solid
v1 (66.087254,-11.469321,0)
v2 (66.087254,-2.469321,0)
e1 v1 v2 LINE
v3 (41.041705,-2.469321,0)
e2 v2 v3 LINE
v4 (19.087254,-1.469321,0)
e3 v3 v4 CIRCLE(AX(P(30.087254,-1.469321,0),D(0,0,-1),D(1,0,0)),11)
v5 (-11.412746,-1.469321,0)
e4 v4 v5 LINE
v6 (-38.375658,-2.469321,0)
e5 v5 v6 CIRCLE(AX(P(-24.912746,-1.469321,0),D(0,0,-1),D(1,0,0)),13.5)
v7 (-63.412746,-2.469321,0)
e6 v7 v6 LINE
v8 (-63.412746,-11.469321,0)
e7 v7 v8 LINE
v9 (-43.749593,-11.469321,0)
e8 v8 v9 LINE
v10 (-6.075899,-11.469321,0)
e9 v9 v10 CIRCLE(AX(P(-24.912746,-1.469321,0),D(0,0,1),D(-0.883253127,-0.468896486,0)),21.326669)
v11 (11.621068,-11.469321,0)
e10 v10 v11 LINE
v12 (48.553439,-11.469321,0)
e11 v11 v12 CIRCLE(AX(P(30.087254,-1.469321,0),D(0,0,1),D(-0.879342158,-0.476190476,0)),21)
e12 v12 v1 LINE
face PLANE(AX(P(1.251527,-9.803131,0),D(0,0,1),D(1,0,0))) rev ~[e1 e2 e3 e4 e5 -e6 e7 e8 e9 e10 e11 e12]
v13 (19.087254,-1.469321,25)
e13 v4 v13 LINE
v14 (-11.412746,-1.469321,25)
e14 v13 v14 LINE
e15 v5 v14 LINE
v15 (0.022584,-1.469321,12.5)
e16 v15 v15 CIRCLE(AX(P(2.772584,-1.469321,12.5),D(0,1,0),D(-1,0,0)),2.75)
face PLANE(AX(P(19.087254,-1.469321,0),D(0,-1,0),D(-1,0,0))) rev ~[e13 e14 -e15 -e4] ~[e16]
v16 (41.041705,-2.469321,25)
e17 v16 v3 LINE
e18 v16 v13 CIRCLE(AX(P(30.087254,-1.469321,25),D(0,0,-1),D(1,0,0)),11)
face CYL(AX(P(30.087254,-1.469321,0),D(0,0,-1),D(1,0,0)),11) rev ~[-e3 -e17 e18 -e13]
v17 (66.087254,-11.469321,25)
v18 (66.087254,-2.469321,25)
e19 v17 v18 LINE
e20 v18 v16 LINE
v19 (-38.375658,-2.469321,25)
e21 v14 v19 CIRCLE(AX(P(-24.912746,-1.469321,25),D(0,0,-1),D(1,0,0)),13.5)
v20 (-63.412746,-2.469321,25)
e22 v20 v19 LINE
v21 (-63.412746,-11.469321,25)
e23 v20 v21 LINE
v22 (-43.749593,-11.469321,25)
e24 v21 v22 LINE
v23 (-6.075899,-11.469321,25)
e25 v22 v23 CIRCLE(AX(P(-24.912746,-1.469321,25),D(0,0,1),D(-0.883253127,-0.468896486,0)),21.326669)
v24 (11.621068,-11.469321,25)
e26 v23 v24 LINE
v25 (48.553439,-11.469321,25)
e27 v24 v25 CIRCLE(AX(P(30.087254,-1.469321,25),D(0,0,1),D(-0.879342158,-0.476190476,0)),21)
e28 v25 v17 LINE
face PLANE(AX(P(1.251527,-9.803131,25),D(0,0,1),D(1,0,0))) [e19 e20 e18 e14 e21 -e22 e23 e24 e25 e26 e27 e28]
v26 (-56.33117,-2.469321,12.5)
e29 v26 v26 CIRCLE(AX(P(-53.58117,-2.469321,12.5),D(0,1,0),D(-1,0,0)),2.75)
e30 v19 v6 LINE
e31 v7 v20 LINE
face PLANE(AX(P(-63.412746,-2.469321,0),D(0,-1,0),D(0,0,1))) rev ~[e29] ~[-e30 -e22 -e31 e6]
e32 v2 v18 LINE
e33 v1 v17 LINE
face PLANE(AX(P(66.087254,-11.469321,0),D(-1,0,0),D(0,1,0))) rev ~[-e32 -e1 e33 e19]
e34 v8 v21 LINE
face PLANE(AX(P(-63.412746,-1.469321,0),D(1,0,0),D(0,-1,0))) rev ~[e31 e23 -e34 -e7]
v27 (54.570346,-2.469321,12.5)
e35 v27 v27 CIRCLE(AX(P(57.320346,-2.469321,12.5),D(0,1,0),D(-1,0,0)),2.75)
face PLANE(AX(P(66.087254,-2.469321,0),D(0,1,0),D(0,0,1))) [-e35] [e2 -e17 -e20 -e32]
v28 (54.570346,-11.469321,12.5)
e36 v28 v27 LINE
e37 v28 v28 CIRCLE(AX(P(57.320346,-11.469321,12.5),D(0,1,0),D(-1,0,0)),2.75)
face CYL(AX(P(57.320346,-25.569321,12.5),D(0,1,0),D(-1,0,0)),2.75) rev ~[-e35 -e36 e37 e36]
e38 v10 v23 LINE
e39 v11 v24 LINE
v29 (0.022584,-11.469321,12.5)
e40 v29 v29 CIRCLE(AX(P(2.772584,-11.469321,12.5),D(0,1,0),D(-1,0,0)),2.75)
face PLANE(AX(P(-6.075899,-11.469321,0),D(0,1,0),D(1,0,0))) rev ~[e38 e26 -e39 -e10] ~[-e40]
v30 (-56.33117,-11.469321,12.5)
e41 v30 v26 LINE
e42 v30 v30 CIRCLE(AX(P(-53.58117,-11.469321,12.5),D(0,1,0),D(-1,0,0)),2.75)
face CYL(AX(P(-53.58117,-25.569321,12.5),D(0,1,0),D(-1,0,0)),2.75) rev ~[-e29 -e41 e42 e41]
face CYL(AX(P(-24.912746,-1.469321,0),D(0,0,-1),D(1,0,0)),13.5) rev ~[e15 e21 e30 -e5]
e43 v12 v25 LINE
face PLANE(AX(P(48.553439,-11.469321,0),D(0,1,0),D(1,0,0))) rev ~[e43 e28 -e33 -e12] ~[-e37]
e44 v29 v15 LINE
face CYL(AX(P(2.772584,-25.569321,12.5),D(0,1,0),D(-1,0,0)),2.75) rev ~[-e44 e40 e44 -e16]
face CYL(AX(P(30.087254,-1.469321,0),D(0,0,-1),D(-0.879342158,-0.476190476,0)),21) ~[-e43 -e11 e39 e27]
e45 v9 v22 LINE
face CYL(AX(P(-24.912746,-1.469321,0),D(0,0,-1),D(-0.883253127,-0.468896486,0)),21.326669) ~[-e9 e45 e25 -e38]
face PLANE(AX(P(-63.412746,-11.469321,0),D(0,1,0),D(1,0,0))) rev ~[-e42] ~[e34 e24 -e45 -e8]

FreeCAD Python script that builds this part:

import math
import FreeCAD as App
import Part
import Sketcher
from FreeCAD import Vector


def add_polygon(sketch, points):
    """Adds a closed chain of lines whose ends are joined by coincident constraints."""
    first, n = sketch.GeometryCount, len(points)
    for a, b in zip(points, points[1:] + points[:1]):
        sketch.addGeometry(Part.LineSegment(App.Vector(*a, 0), App.Vector(*b, 0)), False)
    for i in range(n):
        sketch.addConstraint(Sketcher.Constraint("Coincident", first + i, 2, first + (i + 1) % n, 1))

doc = App.newDocument("Part")
body = doc.addObject("PartDesign::Body", "Body")

# Sketch on XY plane
sketch1 = body.newObject("Sketcher::SketchObject", "Sketch")
sketch1.AttachmentSupport = (doc.getObject("XY_Plane"), [""])
sketch1.MapMode = "FlatFace"
sketch1.addGeometry(Part.LineSegment(Vector(-38.412746, -1.469321, 0), Vector(-63.412746, -1.469321, 0)), False)
sketch1.addGeometry(Part.LineSegment(Vector(-63.412746, -1.469321, 0), Vector(-63.412746, -11.469321, 0)), False)
sketch1.addGeometry(Part.LineSegment(Vector(-63.412746, -11.469321, 0), Vector(-43.749593, -11.469321, 0)), False)
sketch1.addGeometry(Part.ArcOfCircle(Part.Circle(Vector(-24.912746, -1.469321, 0), Vector(0, 0, 1), 21.326669), math.radians(-152.037311), math.radians(-27.962689)), False)
sketch1.addGeometry(Part.LineSegment(Vector(-6.075899, -11.469321, 0), Vector(11.621068, -11.469321, 0)), False)
sketch1.addGeometry(Part.ArcOfCircle(Part.Circle(Vector(30.087254, -1.469321, 0), Vector(0, 0, 1), 21), math.radians(-151.56311), math.radians(-28.43689)), False)
sketch1.addGeometry(Part.LineSegment(Vector(48.553439, -11.469321, 0), Vector(66.087254, -11.469321, 0)), False)
sketch1.addGeometry(Part.LineSegment(Vector(66.087254, -11.469321, 0), Vector(66.087254, -1.469321, 0)), False)
sketch1.addGeometry(Part.LineSegment(Vector(66.087254, -1.469321, 0), Vector(41.087254, -1.469321, 0)), False)
sketch1.addGeometry(Part.ArcOfCircle(Part.Circle(Vector(30.087254, -1.469321, 0), Vector(0, 0, 1), 11), math.radians(180), math.radians(360)), False)
sketch1.addGeometry(Part.LineSegment(Vector(19.087254, -1.469321, 0), Vector(-11.412746, -1.469321, 0)), False)
sketch1.addGeometry(Part.ArcOfCircle(Part.Circle(Vector(-24.912746, -1.469321, 0), Vector(0, 0, 1), 13.5), math.radians(180), math.radians(360)), False)
sketch1.addConstraint(Sketcher.Constraint("Coincident", 0, 2, 1, 1))
sketch1.addConstraint(Sketcher.Constraint("Coincident", 1, 2, 2, 1))
sketch1.addConstraint(Sketcher.Constraint("Coincident", 2, 2, 3, 1))
sketch1.addConstraint(Sketcher.Constraint("Coincident", 3, 2, 4, 1))
sketch1.addConstraint(Sketcher.Constraint("Coincident", 4, 2, 5, 1))
sketch1.addConstraint(Sketcher.Constraint("Coincident", 5, 2, 6, 1))
sketch1.addConstraint(Sketcher.Constraint("Coincident", 6, 2, 7, 1))
sketch1.addConstraint(Sketcher.Constraint("Coincident", 7, 2, 8, 1))
sketch1.addConstraint(Sketcher.Constraint("Coincident", 8, 2, 9, 2))
sketch1.addConstraint(Sketcher.Constraint("Coincident", 9, 1, 10, 1))
sketch1.addConstraint(Sketcher.Constraint("Coincident", 10, 2, 11, 2))
sketch1.addConstraint(Sketcher.Constraint("Coincident", 11, 1, 0, 1))
sketch1.addConstraint(Sketcher.Constraint("Horizontal", 0))
sketch1.addConstraint(Sketcher.Constraint("Vertical", 1))
sketch1.addConstraint(Sketcher.Constraint("Horizontal", 2))
sketch1.addConstraint(Sketcher.Constraint("Horizontal", 4))
sketch1.addConstraint(Sketcher.Constraint("Horizontal", 6))
sketch1.addConstraint(Sketcher.Constraint("Vertical", 7))
sketch1.addConstraint(Sketcher.Constraint("Horizontal", 8))
sketch1.addConstraint(Sketcher.Constraint("Horizontal", 10))
sketch1.addConstraint(Sketcher.Constraint("Coincident", 9, 3, 5, 3))
sketch1.addConstraint(Sketcher.Constraint("Coincident", 11, 3, 3, 3))
sketch1.addConstraint(Sketcher.Constraint("Horizontal", 3, 3, 5, 3))
sketch1.addConstraint(Sketcher.Constraint("Horizontal", 11, 3, 0, 2))
sketch1.addConstraint(Sketcher.Constraint("Horizontal", 2, 2, 3, 2))
sketch1.addConstraint(Sketcher.Constraint("Horizontal", 4, 2, 5, 2))
sketch1.addConstraint(Sketcher.Constraint("Horizontal", 0, 2, 7, 2))
sketch1.addConstraint(Sketcher.Constraint("Horizontal", 8, 2, 9, 1))
sketch1.addConstraint(Sketcher.Constraint("Equal", 0, 8))
sketch1.addConstraint(Sketcher.Constraint("Radius", 5, 21.0))
sketch1.addConstraint(Sketcher.Constraint("Radius", 9, 11.0))
sketch1.addConstraint(Sketcher.Constraint("Radius", 11, 13.5))
sketch1.addConstraint(Sketcher.Constraint("DistanceX", 0, 2, 0, 1, 25.0))
sketch1.addConstraint(Sketcher.Constraint("DistanceY", 1, 2, 1, 1, 10.0))
sketch1.addConstraint(Sketcher.Constraint("DistanceX", 10, 2, 10, 1, 30.5))
sketch1.addConstraint(Sketcher.Constraint("Radius", 3, 21.326669))
sketch1.addConstraint(Sketcher.Constraint("DistanceX", 3, 2, -1, 1, 6.075899))
sketch1.addConstraint(Sketcher.Constraint("DistanceY", 3, 3, -1, 1, 1.469321))
pad1 = body.newObject("PartDesign::Pad", "Pad")
pad1.Profile = sketch1
pad1.Length = 25

# Sketch on XZ plane
sketch2 = body.newObject("Sketcher::SketchObject", "Sketch001")
sketch2.AttachmentSupport = (doc.getObject("XZ_Plane"), [""])
sketch2.MapMode = "FlatFace"
sketch2.AttachmentOffset = App.Placement(Vector(0, 0, 11.469321), App.Rotation())
sketch2.addGeometry(Part.Circle(Vector(-53.58117, 12.5, 0), Vector(0, 0, 1), 2.75), False)
sketch2.addConstraint(Sketcher.Constraint("Diameter", 0, 5.5))
sketch2.addConstraint(Sketcher.Constraint("DistanceY", -1, 1, 0, 3, 12.5))
sketch2.addConstraint(Sketcher.Constraint("DistanceX", 0, 3, -1, 1, 53.58117))
doc.recompute()
hole = body.newObject("PartDesign::Hole", "Hole")
hole.Profile = sketch2
hole.ThreadType = "None"
hole.Diameter = 5.5
hole.DepthType = "Dimension"
hole.Depth = 14.1
hole.DrillPoint = "Angled"
hole.DrillPointAngle = 118

# Sketch on XZ plane
sketch3 = body.newObject("Sketcher::SketchObject", "Sketch002")
sketch3.AttachmentSupport = (doc.getObject("XZ_Plane"), [""])
sketch3.MapMode = "FlatFace"
sketch3.AttachmentOffset = App.Placement(Vector(0, 0, 11.469321), App.Rotation())
sketch3.addGeometry(Part.Circle(Vector(57.320346, 12.5, 0), Vector(0, 0, 1), 2.75), False)
sketch3.addConstraint(Sketcher.Constraint("Diameter", 0, 5.5))
sketch3.addConstraint(Sketcher.Constraint("DistanceY", -1, 1, 0, 3, 12.5))
sketch3.addConstraint(Sketcher.Constraint("DistanceX", -1, 1, 0, 3, 57.320346))
doc.recompute()
hole2 = body.newObject("PartDesign::Hole", "Hole001")
hole2.Profile = sketch3
hole2.ThreadType = "None"
hole2.Diameter = 5.5
hole2.DepthType = "Dimension"
hole2.Depth = 14.1
hole2.DrillPoint = "Angled"
hole2.DrillPointAngle = 118

# Sketch on XZ plane
sketch4 = body.newObject("Sketcher::SketchObject", "Sketch003")
sketch4.AttachmentSupport = (doc.getObject("XZ_Plane"), [""])
sketch4.MapMode = "FlatFace"
sketch4.AttachmentOffset = App.Placement(Vector(0, 0, 11.469321), App.Rotation())
sketch4.addGeometry(Part.Circle(Vector(2.772584, 12.5, 0), Vector(0, 0, 1), 2.75), False)
sketch4.addConstraint(Sketcher.Constraint("Diameter", 0, 5.5))
sketch4.addConstraint(Sketcher.Constraint("DistanceY", -1, 1, 0, 3, 12.5))
sketch4.addConstraint(Sketcher.Constraint("DistanceX", -1, 1, 0, 3, 2.772584))
doc.recompute()
hole3 = body.newObject("PartDesign::Hole", "Hole002")
hole3.Profile = sketch4
hole3.ThreadType = "None"
hole3.Diameter = 5.5
hole3.DepthType = "Dimension"
hole3.Depth = 14.1
hole3.DrillPoint = "Angled"
hole3.DrillPointAngle = 118

# Sketch on YZ plane
sketch5 = body.newObject("Sketcher::SketchObject", "Sketch004")
sketch5.AttachmentSupport = (doc.getObject("YZ_Plane"), [""])
sketch5.MapMode = "FlatFace"
sketch5.AttachmentOffset = App.Placement(Vector(0, 0, 66.087254), App.Rotation())
add_polygon(sketch5, [(-2.469321, 25), (-2.469321, 0), (-1.469321, 0), (-1.469321, 25)])  # lines 0-3
sketch5.addConstraint(Sketcher.Constraint("Vertical", 0))
sketch5.addConstraint(Sketcher.Constraint("Horizontal", 1))
sketch5.addConstraint(Sketcher.Constraint("Vertical", 2))
sketch5.addConstraint(Sketcher.Constraint("Horizontal", 3))
sketch5.addConstraint(Sketcher.Constraint("PointOnObject", 0, 2, -1))
sketch5.addConstraint(Sketcher.Constraint("DistanceX", 1, 1, 1, 2, 1.0))
sketch5.addConstraint(Sketcher.Constraint("DistanceY", 0, 2, 0, 1, 25.0))
sketch5.addConstraint(Sketcher.Constraint("DistanceX", 0, 2, -1, 1, 2.469321))
pocket1 = body.newObject("PartDesign::Pocket", "Pocket")
pocket1.Profile = sketch5
pocket1.Length = 30

# Sketch on YZ plane
sketch6 = body.newObject("Sketcher::SketchObject", "Sketch005")
sketch6.AttachmentSupport = (doc.getObject("YZ_Plane"), [""])
sketch6.MapMode = "FlatFace"
sketch6.AttachmentOffset = App.Placement(Vector(0, 0, -63.412746), App.Rotation())
add_polygon(sketch6, [(-1.469321, 25), (-1.469321, 0), (-2.469321, 0), (-2.469321, 25)])  # lines 0-3
sketch6.addConstraint(Sketcher.Constraint("Vertical", 0))
sketch6.addConstraint(Sketcher.Constraint("Horizontal", 1))
sketch6.addConstraint(Sketcher.Constraint("Vertical", 2))
sketch6.addConstraint(Sketcher.Constraint("Horizontal", 3))
sketch6.addConstraint(Sketcher.Constraint("PointOnObject", 0, 2, -1))
sketch6.addConstraint(Sketcher.Constraint("DistanceX", 1, 2, 1, 1, 1.0))
sketch6.addConstraint(Sketcher.Constraint("DistanceY", 0, 2, 0, 1, 25.0))
sketch6.addConstraint(Sketcher.Constraint("DistanceX", 0, 2, -1, 1, 1.469321))
pocket2 = body.newObject("PartDesign::Pocket", "Pocket001")
pocket2.Profile = sketch6
pocket2.Length = 30
pocket2.Reversed = True

doc.recompute()
